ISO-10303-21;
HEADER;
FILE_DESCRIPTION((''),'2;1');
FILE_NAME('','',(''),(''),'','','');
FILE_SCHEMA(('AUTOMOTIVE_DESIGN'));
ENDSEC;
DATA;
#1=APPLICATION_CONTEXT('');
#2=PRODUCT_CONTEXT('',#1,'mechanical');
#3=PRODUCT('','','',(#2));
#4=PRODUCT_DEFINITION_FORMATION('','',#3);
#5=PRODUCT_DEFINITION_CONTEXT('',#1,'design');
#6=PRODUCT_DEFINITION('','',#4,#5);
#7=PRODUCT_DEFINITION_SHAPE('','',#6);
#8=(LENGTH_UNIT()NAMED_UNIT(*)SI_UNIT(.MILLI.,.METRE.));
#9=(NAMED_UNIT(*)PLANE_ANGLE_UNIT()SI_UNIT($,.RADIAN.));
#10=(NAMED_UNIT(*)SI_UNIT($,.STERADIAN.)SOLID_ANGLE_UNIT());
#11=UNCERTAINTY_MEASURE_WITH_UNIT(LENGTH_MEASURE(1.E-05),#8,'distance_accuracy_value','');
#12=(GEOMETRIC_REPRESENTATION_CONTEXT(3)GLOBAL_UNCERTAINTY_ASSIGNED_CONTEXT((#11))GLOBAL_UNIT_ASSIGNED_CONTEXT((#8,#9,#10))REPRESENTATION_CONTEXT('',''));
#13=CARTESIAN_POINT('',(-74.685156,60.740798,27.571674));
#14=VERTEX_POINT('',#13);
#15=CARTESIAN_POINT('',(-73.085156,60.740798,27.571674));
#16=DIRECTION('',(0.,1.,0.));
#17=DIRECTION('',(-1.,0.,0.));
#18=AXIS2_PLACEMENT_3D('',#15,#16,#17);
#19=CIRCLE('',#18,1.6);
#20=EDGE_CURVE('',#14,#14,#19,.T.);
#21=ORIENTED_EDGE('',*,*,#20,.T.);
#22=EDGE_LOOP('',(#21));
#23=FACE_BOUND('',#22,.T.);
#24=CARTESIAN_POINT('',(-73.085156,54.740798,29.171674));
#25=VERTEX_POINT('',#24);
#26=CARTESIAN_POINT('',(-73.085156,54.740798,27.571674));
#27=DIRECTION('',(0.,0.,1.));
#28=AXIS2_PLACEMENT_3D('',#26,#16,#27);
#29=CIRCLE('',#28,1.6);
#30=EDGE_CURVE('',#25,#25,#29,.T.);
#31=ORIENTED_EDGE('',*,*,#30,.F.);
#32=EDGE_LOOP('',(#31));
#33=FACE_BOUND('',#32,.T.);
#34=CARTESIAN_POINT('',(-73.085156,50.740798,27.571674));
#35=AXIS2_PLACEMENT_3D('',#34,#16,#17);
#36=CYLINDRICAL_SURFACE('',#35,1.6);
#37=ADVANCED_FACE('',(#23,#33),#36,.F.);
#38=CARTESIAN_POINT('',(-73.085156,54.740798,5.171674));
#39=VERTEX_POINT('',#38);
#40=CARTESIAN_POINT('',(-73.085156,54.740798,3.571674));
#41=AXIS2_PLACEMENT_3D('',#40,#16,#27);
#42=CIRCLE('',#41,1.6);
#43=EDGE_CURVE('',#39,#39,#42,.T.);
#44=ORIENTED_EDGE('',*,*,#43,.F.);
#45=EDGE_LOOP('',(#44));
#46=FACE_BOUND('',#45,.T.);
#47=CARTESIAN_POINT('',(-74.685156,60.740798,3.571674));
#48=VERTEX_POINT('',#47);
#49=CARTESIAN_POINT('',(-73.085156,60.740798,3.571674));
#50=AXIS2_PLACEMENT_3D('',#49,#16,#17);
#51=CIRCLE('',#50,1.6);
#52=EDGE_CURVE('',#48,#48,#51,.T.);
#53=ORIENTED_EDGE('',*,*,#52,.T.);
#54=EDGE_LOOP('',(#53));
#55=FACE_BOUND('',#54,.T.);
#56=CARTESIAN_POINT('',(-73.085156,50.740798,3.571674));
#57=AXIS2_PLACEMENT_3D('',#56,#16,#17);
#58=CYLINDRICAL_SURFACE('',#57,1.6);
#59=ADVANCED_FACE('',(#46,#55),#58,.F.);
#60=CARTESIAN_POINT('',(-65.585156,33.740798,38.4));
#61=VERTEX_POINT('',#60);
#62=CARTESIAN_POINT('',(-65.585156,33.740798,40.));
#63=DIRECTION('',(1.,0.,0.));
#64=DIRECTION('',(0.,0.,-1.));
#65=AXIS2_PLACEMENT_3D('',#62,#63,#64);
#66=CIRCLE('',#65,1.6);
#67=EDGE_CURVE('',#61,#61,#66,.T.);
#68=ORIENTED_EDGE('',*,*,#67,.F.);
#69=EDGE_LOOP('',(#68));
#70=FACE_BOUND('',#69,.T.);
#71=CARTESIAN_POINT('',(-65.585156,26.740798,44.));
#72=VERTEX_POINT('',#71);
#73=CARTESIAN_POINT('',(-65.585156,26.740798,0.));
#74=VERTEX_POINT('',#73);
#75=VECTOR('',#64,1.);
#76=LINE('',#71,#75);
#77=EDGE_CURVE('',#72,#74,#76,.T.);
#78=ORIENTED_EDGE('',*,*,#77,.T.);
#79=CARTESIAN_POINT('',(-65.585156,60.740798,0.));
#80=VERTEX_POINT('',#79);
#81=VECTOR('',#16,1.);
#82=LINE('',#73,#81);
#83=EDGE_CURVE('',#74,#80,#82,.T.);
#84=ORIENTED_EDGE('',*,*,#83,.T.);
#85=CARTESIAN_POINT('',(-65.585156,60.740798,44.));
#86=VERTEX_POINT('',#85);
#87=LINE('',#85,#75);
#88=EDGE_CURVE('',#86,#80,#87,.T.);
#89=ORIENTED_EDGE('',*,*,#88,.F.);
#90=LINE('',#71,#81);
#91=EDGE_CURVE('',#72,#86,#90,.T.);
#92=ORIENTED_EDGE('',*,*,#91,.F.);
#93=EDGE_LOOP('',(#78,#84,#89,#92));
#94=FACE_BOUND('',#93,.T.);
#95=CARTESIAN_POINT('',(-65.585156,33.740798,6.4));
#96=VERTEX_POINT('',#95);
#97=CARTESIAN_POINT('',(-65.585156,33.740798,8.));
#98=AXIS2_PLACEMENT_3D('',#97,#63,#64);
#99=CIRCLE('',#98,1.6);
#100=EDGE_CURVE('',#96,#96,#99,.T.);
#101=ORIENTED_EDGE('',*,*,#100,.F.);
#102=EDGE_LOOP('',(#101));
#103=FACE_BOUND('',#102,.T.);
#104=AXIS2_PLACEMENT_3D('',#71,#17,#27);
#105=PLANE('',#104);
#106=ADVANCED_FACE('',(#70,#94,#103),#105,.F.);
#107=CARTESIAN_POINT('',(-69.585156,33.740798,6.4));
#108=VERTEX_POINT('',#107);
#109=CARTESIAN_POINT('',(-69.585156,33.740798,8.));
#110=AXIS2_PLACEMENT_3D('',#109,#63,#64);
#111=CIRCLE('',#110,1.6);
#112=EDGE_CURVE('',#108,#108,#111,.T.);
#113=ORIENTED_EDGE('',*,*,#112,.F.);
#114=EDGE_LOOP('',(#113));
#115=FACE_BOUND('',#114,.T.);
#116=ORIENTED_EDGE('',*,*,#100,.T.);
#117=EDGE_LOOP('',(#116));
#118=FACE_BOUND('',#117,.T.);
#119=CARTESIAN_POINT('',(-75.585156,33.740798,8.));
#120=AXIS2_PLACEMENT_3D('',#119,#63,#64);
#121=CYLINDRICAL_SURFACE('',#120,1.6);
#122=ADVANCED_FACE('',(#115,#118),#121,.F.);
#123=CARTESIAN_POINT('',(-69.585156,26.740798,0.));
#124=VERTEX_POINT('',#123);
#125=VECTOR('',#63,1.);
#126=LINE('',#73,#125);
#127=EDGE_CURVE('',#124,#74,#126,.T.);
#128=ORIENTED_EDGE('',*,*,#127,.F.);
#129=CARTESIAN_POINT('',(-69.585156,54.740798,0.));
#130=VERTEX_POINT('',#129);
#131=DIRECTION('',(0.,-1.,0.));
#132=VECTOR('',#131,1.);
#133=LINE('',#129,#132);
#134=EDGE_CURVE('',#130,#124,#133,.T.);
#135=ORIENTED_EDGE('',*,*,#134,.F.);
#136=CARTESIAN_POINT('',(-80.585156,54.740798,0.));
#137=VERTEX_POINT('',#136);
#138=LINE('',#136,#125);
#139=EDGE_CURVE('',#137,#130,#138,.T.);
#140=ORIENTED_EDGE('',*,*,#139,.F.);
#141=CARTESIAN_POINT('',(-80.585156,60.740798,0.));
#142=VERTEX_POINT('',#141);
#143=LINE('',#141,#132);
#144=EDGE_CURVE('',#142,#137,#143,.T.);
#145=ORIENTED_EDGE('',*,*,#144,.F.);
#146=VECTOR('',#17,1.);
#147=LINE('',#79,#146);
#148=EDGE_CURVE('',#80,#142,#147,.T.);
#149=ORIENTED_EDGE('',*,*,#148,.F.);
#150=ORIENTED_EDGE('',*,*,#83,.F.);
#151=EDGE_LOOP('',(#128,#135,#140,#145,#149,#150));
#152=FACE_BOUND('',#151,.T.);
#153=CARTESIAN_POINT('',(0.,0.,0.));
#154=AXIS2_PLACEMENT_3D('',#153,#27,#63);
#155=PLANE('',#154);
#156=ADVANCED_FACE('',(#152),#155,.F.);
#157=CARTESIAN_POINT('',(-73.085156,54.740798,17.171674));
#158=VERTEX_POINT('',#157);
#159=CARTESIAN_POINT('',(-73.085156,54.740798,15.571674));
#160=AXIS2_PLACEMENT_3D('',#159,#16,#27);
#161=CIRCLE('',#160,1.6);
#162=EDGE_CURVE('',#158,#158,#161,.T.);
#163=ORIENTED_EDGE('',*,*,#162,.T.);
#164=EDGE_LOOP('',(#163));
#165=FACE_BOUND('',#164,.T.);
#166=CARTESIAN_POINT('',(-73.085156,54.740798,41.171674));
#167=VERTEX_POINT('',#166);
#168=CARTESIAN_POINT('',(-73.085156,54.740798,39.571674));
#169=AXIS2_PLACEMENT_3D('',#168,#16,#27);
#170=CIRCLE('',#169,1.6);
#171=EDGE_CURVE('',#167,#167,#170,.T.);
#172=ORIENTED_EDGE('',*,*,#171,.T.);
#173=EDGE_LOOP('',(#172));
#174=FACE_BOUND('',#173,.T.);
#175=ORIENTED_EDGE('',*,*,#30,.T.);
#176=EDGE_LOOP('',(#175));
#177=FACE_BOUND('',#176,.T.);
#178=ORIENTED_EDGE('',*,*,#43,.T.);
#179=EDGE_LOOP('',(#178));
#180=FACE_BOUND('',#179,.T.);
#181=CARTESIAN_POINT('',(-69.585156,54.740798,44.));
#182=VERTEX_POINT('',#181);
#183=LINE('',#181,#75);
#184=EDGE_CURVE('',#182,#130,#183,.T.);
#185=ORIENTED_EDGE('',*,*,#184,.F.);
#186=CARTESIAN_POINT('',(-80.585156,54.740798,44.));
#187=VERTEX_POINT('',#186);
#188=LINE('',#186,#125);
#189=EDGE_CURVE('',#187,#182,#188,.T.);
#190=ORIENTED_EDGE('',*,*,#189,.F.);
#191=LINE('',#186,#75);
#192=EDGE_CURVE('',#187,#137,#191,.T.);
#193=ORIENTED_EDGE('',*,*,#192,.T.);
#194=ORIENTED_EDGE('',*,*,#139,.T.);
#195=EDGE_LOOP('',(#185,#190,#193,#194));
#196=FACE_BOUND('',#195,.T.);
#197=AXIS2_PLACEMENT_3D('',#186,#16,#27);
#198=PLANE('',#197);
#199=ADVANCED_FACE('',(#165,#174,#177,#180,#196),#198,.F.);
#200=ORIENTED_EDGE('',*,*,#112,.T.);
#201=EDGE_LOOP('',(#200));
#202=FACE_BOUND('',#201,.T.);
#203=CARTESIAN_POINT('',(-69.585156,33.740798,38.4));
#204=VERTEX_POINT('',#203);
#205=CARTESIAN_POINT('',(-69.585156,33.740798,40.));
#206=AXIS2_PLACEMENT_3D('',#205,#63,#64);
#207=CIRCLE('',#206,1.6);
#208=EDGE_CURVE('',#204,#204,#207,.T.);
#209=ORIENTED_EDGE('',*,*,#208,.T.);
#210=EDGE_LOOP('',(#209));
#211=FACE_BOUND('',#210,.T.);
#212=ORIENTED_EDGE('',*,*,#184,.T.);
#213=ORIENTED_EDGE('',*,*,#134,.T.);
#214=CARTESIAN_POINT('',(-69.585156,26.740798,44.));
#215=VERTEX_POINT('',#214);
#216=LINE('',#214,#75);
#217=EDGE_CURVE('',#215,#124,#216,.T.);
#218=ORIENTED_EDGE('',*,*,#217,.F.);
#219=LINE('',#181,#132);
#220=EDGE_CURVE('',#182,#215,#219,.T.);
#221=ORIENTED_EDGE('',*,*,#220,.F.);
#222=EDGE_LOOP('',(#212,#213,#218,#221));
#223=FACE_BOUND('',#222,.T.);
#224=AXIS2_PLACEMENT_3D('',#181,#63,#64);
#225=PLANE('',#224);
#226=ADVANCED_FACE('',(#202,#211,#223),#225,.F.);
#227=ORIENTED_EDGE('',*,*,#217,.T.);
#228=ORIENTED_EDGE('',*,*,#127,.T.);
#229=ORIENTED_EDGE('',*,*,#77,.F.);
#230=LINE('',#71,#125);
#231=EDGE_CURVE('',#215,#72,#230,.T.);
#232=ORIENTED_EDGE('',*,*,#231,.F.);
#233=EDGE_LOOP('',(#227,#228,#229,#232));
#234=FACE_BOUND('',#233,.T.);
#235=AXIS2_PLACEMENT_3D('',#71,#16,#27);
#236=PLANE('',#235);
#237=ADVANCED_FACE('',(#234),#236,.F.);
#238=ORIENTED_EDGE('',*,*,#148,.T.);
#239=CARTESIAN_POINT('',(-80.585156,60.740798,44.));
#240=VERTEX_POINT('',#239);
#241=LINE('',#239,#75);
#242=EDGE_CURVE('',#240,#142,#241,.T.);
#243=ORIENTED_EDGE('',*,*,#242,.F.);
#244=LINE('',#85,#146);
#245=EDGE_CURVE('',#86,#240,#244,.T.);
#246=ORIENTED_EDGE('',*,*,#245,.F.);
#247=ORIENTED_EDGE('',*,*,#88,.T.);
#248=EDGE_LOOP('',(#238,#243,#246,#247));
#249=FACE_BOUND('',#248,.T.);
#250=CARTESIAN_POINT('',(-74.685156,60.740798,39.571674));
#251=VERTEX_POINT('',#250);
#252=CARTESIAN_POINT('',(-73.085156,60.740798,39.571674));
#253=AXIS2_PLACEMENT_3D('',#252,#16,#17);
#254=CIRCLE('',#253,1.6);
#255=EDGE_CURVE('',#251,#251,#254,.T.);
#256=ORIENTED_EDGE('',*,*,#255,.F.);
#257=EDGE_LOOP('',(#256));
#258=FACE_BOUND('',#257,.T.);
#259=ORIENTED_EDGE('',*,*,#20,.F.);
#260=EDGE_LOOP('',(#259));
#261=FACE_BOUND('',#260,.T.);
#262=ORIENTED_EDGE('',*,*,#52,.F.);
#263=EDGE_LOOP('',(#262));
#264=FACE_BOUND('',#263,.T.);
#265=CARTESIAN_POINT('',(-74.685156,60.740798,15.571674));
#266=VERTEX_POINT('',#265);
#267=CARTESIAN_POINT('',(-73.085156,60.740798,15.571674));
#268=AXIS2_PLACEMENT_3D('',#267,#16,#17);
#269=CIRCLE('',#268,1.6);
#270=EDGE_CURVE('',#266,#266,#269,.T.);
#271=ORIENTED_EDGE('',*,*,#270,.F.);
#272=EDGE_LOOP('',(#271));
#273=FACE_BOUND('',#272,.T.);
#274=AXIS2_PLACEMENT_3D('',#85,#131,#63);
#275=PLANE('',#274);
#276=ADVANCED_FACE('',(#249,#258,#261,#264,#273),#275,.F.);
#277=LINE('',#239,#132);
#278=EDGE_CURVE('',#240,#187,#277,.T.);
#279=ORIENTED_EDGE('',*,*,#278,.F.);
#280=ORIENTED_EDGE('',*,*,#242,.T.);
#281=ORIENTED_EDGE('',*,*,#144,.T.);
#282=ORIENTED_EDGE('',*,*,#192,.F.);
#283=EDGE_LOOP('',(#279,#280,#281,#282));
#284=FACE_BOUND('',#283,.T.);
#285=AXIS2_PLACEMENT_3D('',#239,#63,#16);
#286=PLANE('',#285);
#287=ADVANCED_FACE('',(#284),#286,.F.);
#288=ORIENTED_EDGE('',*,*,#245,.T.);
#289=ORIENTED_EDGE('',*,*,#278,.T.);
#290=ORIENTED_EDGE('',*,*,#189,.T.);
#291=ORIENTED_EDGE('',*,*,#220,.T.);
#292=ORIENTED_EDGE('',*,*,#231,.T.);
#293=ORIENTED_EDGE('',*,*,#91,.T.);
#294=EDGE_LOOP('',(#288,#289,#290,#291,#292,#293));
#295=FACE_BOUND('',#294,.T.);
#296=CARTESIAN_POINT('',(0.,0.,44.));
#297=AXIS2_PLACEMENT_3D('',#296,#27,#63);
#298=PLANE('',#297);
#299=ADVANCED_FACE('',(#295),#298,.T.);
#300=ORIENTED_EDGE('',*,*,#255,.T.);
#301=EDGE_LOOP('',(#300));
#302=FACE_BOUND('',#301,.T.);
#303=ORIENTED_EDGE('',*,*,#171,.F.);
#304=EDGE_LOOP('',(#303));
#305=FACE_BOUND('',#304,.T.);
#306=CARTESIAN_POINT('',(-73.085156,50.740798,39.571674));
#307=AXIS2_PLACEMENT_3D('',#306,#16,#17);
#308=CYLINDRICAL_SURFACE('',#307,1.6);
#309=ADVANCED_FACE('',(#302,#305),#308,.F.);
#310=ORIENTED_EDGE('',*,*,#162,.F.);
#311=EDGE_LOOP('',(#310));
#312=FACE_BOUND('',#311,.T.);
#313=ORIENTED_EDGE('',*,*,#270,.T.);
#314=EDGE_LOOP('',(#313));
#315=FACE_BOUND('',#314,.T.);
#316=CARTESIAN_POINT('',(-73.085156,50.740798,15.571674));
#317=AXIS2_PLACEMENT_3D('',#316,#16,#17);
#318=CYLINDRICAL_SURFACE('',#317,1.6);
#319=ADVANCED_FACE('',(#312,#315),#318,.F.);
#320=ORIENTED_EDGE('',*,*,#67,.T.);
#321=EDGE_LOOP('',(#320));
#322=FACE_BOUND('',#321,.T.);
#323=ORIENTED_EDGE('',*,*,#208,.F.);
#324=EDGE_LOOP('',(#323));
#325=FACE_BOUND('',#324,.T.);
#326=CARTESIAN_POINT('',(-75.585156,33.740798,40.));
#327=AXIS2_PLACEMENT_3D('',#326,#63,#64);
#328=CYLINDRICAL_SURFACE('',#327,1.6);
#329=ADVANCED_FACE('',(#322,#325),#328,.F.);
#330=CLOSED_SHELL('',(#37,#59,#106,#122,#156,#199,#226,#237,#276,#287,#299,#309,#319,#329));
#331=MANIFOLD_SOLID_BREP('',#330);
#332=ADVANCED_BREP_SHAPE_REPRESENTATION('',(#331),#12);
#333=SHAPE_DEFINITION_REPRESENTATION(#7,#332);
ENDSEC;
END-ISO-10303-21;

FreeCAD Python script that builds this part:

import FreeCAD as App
import Part
import Sketcher
Q = App.Units.Quantity


def add_polygon(sketch, points):
    """Adds a closed chain of lines whose ends are joined by coincident constraints."""
    first, n = sketch.GeometryCount, len(points)
    for a, b in zip(points, points[1:] + points[:1]):
        sketch.addGeometry(Part.LineSegment(App.Vector(*a, 0), App.Vector(*b, 0)), False)
    for i in range(n):
        sketch.addConstraint(Sketcher.Constraint("Coincident", first + i, 2, first + (i + 1) % n, 1))

doc = App.newDocument("Part")
body = doc.addObject("PartDesign::Body", "Body")

sketch1 = doc.addObject("Sketcher::SketchObject", "Sketch")
body.addObject(sketch1)
sketch1.AttachmentSupport = (doc.XY_Plane, [""])
sketch1.MapMode = "FlatFace"
add_polygon(sketch1, [(-80.6, 60.7), (-80.6, 54.7), (-69.6, 54.7), (-69.6, 26.7), (-65.6, 26.7), (-65.6, 60.7)])
sketch1.addConstraint([
    Sketcher.Constraint("Vertical", 0),
    Sketcher.Constraint("Horizontal", 1),
    Sketcher.Constraint("Vertical", 2),
    Sketcher.Constraint("Horizontal", 3),
    Sketcher.Constraint("Vertical", 4),
    Sketcher.Constraint("Horizontal", 5),
    Sketcher.Constraint("DistanceX", 1, 1, 1, 2, Q("11 mm")),
    Sketcher.Constraint("DistanceX", 3, 1, 3, 2, Q("4 mm")),
    Sketcher.Constraint("DistanceY", 0, 2, 0, 1, Q("6 mm")),
    Sketcher.Constraint("DistanceY", 2, 2, 2, 1, Q("28 mm")),
    Sketcher.Constraint("DistanceY", -1, 1, 0, 2, Q("54.740798 mm")),
    Sketcher.Constraint("DistanceX", 0, 2, -1, 1, Q("80.585156 mm")),
])
pad1 = doc.addObject("PartDesign::Pad", "Pad")
body.addObject(pad1)
pad1.Profile = sketch1
pad1.Length = 44

sketch2 = doc.addObject("Sketcher::SketchObject", "Sketch001")
body.addObject(sketch2)
sketch2.AttachmentSupport = (doc.YZ_Plane, [""])
sketch2.MapMode = "FlatFace"
sketch2.AttachmentOffset = App.Placement(App.Vector(0, 0, -65.585156), App.Rotation())
sketch2.addGeometry([
    Part.Circle(App.Vector(33.7, 40, 0), App.Vector(0, 0, 1), 1.6),
    Part.Circle(App.Vector(33.7, 8, 0), App.Vector(0, 0, 1), 1.6),
], False)
sketch2.addConstraint([
    Sketcher.Constraint("Equal", 0, 1),
    Sketcher.Constraint("Vertical", 0, 3, 1, 3),
    Sketcher.Constraint("Diameter", 0, Q("3.2 mm")),
    Sketcher.Constraint("DistanceY", -1, 1, 0, 3, Q("40 mm")),
    Sketcher.Constraint("DistanceY", -1, 1, 1, 3, Q("8 mm")),
    Sketcher.Constraint("DistanceX", -1, 1, 0, 3, Q("33.740798 mm")),
])
pocket1 = doc.addObject("PartDesign::Pocket", "Pocket")
body.addObject(pocket1)
pocket1.Profile = sketch2
pocket1.Length = 10

sketch3 = doc.addObject("Sketcher::SketchObject", "Sketch002")
body.addObject(sketch3)
sketch3.AttachmentSupport = (doc.XZ_Plane, [""])
sketch3.MapMode = "FlatFace"
sketch3.AttachmentOffset = App.Placement(App.Vector(0, 0, -60.740798), App.Rotation())
sketch3.addGeometry([
    Part.Circle(App.Vector(-73.1, 3.6, 0), App.Vector(0, 0, 1), 1.6),
    Part.Circle(App.Vector(-73.1, 15.6, 0), App.Vector(0, 0, 1), 1.6),
    Part.Circle(App.Vector(-73.1, 27.6, 0), App.Vector(0, 0, 1), 1.6),
    Part.Circle(App.Vector(-73.1, 39.6, 0), App.Vector(0, 0, 1), 1.6),
], False)
sketch3.addConstraint([
    Sketcher.Constraint("Equal", 0, 1),
    Sketcher.Constraint("Equal", 1, 2),
    Sketcher.Constraint("Equal", 2, 3),
    Sketcher.Constraint("Vertical", 0, 3, 1, 3),
    Sketcher.Constraint("Vertical", 1, 3, 2, 3),
    Sketcher.Constraint("Vertical", 2, 3, 3, 3),
    Sketcher.Constraint("Diameter", 0, Q("3.2 mm")),
    Sketcher.Constraint("DistanceY", 0, 3, 1, 3, Q("12 mm")),
    Sketcher.Constraint("DistanceY", 1, 3, 2, 3, Q("12 mm")),
    Sketcher.Constraint("DistanceY", 2, 3, 3, 3, Q("12 mm")),
    Sketcher.Constraint("DistanceX", 0, 3, -1, 1, Q("73.085156 mm")),
    Sketcher.Constraint("DistanceY", -1, 1, 0, 3, Q("3.571674 mm")),
])
pocket2 = doc.addObject("PartDesign::Pocket", "Pocket001")
body.addObject(pocket2)
pocket2.Profile = sketch3
pocket2.Length = 10
pocket2.Reversed = True

doc.recompute()
